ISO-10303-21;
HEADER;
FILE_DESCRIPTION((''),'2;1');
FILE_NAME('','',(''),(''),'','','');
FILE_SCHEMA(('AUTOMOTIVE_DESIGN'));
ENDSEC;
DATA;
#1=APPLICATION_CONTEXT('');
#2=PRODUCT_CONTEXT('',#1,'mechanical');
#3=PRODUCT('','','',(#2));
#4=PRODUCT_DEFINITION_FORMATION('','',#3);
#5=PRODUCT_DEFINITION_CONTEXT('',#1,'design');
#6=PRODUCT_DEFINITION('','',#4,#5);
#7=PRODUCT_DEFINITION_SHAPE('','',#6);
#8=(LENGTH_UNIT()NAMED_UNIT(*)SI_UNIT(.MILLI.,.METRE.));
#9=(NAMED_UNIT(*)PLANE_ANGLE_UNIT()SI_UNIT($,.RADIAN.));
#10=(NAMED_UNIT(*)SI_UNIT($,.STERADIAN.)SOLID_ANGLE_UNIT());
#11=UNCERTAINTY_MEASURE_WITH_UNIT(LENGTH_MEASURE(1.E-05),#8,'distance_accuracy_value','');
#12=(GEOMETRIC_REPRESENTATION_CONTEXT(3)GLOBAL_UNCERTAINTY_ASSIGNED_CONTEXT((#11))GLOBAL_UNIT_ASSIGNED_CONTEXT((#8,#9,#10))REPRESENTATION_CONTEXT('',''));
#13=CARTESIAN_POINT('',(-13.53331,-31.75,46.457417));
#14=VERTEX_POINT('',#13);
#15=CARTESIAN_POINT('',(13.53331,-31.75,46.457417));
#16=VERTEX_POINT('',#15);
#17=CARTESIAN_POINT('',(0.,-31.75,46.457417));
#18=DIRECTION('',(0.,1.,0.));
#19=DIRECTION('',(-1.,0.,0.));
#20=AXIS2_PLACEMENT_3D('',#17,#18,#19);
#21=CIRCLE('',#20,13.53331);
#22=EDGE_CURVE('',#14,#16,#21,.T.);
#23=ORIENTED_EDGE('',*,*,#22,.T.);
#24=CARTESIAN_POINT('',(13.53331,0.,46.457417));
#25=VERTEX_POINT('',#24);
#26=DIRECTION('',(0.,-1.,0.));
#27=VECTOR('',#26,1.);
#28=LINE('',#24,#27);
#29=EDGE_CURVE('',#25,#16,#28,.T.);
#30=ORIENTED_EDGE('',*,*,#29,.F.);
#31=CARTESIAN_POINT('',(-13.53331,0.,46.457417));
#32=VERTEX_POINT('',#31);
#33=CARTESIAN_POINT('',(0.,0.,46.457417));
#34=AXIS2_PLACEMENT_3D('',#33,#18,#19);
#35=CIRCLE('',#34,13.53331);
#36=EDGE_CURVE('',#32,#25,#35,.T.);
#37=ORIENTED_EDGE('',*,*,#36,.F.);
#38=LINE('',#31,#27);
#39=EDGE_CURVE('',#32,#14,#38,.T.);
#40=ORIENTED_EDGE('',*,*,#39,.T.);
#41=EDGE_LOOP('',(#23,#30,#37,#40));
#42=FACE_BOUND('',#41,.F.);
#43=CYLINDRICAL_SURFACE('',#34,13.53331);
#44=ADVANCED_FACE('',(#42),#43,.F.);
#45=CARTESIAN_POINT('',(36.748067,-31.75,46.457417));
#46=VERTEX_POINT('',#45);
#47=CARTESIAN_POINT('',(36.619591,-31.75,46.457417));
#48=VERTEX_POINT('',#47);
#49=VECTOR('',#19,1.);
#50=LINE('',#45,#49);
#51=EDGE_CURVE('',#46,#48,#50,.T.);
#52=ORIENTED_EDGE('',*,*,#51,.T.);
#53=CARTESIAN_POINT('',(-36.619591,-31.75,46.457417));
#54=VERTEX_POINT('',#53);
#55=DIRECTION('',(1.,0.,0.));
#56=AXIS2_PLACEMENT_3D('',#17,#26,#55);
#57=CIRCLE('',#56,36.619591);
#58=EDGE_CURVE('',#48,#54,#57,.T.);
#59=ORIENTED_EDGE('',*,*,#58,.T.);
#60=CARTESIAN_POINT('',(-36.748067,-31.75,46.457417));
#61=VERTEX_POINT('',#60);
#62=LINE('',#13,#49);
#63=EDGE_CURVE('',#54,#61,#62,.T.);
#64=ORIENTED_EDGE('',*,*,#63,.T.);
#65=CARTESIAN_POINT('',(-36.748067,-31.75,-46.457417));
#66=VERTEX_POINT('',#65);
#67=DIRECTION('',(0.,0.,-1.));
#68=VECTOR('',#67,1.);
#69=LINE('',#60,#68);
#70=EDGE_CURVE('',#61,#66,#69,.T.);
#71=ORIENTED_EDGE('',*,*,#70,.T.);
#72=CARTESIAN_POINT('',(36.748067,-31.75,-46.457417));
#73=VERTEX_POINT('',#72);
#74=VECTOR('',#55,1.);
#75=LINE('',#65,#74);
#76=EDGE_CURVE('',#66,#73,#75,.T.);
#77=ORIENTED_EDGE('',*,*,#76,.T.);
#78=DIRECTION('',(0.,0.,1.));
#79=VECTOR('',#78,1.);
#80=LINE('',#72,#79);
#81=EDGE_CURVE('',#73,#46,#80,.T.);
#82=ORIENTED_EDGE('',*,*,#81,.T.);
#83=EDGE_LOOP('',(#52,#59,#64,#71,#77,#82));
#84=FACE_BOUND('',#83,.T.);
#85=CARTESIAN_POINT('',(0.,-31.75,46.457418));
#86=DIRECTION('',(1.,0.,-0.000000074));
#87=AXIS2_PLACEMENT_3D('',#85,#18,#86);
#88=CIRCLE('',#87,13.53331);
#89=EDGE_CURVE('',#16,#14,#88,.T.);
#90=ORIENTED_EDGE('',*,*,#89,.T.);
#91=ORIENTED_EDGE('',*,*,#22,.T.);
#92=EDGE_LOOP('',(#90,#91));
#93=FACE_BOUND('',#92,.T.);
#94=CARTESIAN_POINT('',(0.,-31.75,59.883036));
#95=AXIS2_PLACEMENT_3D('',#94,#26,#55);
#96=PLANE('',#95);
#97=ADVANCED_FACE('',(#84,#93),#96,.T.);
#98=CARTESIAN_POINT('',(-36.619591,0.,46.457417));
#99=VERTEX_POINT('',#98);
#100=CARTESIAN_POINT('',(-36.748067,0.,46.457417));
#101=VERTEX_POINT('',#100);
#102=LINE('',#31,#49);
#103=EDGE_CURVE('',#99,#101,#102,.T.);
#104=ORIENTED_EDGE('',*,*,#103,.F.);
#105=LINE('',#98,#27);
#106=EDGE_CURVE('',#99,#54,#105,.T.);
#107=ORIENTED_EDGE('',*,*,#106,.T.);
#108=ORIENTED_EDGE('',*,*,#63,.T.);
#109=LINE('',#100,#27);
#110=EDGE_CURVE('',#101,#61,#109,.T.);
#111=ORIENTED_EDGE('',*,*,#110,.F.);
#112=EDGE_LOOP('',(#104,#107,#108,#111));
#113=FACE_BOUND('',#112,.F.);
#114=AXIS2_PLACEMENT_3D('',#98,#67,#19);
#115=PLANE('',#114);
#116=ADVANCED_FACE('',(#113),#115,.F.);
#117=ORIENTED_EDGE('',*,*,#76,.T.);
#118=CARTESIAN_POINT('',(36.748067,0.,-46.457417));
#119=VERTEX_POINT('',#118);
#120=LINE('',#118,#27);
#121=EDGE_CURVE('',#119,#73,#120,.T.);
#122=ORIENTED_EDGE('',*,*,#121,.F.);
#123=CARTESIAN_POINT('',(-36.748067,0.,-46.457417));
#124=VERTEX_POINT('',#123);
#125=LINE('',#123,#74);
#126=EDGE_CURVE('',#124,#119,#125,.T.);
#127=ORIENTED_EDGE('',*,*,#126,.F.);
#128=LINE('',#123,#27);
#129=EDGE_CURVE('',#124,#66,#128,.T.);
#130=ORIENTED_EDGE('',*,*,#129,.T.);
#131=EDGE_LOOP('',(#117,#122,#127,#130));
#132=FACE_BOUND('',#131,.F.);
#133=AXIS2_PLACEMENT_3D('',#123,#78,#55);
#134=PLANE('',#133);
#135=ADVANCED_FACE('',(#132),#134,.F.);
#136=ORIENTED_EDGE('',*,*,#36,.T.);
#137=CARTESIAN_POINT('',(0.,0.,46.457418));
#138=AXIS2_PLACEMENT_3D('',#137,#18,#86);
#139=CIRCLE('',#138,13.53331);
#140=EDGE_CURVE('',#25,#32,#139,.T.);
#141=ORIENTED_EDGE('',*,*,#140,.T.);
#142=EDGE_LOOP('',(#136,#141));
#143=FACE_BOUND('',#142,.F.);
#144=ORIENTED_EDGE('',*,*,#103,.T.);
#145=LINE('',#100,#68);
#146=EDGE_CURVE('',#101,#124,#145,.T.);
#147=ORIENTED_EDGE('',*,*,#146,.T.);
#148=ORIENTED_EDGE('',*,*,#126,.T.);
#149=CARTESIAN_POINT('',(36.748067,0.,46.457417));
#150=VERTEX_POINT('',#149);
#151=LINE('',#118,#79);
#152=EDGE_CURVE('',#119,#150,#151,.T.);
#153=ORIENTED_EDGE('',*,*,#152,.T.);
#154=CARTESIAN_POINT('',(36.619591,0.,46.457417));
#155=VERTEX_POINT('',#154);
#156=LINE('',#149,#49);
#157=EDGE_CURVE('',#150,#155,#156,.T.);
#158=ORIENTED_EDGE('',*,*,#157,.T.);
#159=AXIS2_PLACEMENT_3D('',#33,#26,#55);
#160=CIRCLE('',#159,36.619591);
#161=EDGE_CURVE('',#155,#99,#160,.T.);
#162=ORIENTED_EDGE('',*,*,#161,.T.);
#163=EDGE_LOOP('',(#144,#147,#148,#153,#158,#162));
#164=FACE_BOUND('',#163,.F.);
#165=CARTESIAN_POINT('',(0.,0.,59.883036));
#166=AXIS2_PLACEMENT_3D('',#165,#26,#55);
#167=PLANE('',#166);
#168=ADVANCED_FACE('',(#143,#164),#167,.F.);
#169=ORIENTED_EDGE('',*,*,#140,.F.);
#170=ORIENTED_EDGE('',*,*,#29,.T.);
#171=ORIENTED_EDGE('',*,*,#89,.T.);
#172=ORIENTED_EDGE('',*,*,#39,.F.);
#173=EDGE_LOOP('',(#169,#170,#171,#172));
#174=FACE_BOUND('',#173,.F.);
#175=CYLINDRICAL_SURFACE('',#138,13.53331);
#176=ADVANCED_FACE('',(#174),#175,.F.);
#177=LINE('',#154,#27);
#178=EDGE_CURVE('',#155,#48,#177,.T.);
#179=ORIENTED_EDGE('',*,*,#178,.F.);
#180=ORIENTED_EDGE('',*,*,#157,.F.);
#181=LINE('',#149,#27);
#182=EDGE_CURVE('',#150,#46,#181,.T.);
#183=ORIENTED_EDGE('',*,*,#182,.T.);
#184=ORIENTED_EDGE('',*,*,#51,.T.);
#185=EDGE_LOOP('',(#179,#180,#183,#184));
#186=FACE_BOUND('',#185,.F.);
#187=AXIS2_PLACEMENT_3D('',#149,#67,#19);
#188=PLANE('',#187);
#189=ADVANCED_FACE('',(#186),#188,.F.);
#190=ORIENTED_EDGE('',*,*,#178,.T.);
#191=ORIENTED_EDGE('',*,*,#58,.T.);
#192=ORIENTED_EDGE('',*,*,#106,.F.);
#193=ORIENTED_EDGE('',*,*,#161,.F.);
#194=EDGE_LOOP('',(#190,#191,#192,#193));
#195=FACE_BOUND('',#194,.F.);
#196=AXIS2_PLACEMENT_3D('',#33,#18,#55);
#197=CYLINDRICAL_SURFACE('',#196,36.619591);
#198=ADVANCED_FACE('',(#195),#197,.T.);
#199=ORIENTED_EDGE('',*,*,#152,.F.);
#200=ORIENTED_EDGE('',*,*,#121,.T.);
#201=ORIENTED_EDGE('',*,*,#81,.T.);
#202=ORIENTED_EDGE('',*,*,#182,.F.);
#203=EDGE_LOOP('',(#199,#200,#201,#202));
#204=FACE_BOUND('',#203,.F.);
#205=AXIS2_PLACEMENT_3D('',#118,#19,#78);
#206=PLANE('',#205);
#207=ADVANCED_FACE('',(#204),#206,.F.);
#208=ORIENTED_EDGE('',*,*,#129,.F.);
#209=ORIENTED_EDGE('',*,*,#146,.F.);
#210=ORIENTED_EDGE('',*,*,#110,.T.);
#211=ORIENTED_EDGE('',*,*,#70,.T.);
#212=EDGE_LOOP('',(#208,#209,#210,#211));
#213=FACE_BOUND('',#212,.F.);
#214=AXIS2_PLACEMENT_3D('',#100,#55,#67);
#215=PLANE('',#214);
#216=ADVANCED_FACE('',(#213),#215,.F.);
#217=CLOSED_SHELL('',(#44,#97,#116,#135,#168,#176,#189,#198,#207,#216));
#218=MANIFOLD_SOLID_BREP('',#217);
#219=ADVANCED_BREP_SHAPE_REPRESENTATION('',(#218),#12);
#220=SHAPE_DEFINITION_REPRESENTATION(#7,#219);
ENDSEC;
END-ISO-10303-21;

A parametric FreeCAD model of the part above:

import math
import FreeCAD as App
import Part
import Sketcher
from FreeCAD import Vector
Q = App.Units.Quantity

doc = App.newDocument("Part")
params = doc.addObject("Spreadsheet::Sheet", "Params")
for row, (alias, value) in enumerate([
    ("pad1_length", "1.25 in"),
], start=1):
    params.set(f"A{row}", alias)
    params.set(f"B{row}", "=" + value)
    params.setAlias(f"B{row}", alias)

body = doc.addObject("PartDesign::Body", "Body")

# Sketch on XZ plane
sketch1 = doc.addObject("Sketcher::SketchObject", "Sketch")
body.addObject(sketch1)
sketch1.AttachmentSupport = (doc.XZ_Plane, [""])
sketch1.MapMode = "FlatFace"
sketch1.addGeometry(Part.ArcOfCircle(Part.Circle(Vector(0, 46.46, 0), Vector(0, 0, 1), 36.62), math.radians(0), math.radians(180)), False)
sketch1.addGeometry(Part.LineSegment(Vector(-36.62, 46.46, 0), Vector(-36.75, 46.46, 0)), False)
sketch1.addGeometry(Part.LineSegment(Vector(-36.75, 46.46, 0), Vector(-36.75, -46.46, 0)), False)
sketch1.addGeometry(Part.LineSegment(Vector(-36.75, -46.46, 0), Vector(36.75, -46.46, 0)), False)
sketch1.addGeometry(Part.LineSegment(Vector(36.75, -46.46, 0), Vector(36.75, 46.46, 0)), False)
sketch1.addGeometry(Part.LineSegment(Vector(36.75, 46.46, 0), Vector(36.62, 46.46, 0)), False)
sketch1.addGeometry(Part.ArcOfCircle(Part.Circle(Vector(0, 46.46, 0), Vector(0, 0, 1), 13.53), math.radians(0), math.radians(180)), False)
sketch1.addGeometry(Part.ArcOfCircle(Part.Circle(Vector(0, 46.46, 0), Vector(0, 0, 1), 13.53), math.radians(-180), math.radians(0)), False)
sketch1.addConstraint(Sketcher.Constraint("Coincident", 0, 2, 1, 1))
sketch1.addConstraint(Sketcher.Constraint("Coincident", 1, 2, 2, 1))
sketch1.addConstraint(Sketcher.Constraint("Coincident", 2, 2, 3, 1))
sketch1.addConstraint(Sketcher.Constraint("Coincident", 3, 2, 4, 1))
sketch1.addConstraint(Sketcher.Constraint("Coincident", 4, 2, 5, 1))
sketch1.addConstraint(Sketcher.Constraint("Coincident", 5, 2, 0, 1))
sketch1.addConstraint(Sketcher.Constraint("Tangent", 6, 1, 7, 2))
sketch1.addConstraint(Sketcher.Constraint("Coincident", 7, 1, 6, 2))
sketch1.addConstraint(Sketcher.Constraint("Horizontal", 1))
sketch1.addConstraint(Sketcher.Constraint("Vertical", 2))
sketch1.addConstraint(Sketcher.Constraint("Horizontal", 3))
sketch1.addConstraint(Sketcher.Constraint("Vertical", 4))
sketch1.addConstraint(Sketcher.Constraint("Horizontal", 5))
sketch1.addConstraint(Sketcher.Constraint("Coincident", 6, 3, 0, 3))
sketch1.addConstraint(Sketcher.Constraint("Symmetric", 1, 2, 3, 2, -1, 1))
sketch1.addConstraint(Sketcher.Constraint("Symmetric", 0, 2, 5, 2, -2))
sketch1.addConstraint(Sketcher.Constraint("Horizontal", 7, 3, 0, 2))
sketch1.addConstraint(Sketcher.Constraint("Horizontal", 5, 2, 6, 1))
sketch1.addConstraint(Sketcher.Constraint("Horizontal", 6, 1, 7, 1))
sketch1.addConstraint(Sketcher.Constraint("Radius", 0, Q("36.619591 mm")))
sketch1.addConstraint(Sketcher.Constraint("Radius", 6, Q("13.53331 mm")))
sketch1.addConstraint(Sketcher.Constraint("DistanceX", 1, 2, 1, 1, Q("0.128476 mm")))
sketch1.addConstraint(Sketcher.Constraint("DistanceY", 2, 2, 2, 1, Q("92.914834 mm")))
pad1 = doc.addObject("PartDesign::Pad", "Pad")
body.addObject(pad1)
pad1.Profile = sketch1
pad1.setExpression("Length", "Params.pad1_length")

doc.recompute()
